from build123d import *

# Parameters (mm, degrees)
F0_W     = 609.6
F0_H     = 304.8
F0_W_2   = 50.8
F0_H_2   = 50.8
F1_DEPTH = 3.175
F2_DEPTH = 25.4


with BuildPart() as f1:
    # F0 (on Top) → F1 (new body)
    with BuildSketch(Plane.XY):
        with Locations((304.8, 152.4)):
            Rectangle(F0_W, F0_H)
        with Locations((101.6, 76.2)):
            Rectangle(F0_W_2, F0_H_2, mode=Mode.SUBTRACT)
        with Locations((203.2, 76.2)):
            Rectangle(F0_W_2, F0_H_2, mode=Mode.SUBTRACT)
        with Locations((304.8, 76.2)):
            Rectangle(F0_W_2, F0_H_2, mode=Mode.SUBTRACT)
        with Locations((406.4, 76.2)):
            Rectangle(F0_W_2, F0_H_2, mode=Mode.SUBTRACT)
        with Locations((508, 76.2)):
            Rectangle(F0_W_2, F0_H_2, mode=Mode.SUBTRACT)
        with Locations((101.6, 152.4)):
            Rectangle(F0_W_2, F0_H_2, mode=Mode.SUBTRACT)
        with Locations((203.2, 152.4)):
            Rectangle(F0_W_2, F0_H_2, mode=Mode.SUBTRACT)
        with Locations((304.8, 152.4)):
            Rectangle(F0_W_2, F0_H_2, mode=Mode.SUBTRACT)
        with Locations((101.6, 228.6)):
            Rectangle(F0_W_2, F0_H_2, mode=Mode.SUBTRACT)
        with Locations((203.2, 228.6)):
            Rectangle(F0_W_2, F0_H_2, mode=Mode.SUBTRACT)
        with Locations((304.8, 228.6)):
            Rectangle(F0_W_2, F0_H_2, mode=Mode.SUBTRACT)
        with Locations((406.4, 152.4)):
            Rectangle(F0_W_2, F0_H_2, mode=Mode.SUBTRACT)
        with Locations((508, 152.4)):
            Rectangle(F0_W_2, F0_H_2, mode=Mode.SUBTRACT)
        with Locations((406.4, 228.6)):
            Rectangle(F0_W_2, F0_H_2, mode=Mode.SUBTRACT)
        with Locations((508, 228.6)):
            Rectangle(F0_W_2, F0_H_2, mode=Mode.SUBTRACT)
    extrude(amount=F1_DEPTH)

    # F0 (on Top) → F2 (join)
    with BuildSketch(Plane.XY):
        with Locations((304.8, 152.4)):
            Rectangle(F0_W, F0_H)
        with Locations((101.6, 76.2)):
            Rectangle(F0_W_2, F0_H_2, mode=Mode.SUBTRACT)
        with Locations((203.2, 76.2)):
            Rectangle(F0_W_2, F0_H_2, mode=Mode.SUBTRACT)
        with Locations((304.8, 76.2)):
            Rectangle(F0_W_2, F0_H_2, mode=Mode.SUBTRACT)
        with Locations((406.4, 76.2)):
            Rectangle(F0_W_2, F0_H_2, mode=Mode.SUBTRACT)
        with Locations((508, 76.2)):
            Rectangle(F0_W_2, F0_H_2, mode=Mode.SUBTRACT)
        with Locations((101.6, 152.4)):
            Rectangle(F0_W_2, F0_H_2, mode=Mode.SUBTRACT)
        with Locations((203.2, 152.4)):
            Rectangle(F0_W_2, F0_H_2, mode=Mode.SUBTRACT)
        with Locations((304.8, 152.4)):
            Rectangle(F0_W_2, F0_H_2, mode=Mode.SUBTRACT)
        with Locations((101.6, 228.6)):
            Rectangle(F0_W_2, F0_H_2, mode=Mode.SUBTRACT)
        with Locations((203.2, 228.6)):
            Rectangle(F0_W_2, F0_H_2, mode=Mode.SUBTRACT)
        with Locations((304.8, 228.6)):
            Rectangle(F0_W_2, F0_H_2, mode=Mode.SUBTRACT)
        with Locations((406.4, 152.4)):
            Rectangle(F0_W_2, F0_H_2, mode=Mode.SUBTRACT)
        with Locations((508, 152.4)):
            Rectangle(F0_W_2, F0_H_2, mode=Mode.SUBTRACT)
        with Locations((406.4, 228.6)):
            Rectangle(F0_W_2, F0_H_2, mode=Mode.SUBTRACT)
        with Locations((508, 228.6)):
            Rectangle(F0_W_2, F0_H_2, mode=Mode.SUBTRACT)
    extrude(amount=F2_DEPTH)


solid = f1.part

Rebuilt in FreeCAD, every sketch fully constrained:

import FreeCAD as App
import Part
import Sketcher
Q = App.Units.Quantity

doc = App.newDocument("Part")
body = doc.addObject("PartDesign::Body", "Body")

sketch1 = doc.addObject("Sketcher::SketchObject", "Sketch")
body.addObject(sketch1)
sketch1.AttachmentSupport = (doc.XY_Plane, [""])
sketch1.MapMode = "FlatFace"
sketch1.addGeometry(Part.LineSegment(App.Vector(0, 305, 0), App.Vector(0, 0, 0)), False)
sketch1.addGeometry(Part.LineSegment(App.Vector(0, 0, 0), App.Vector(610, 0, 0)), False)
sketch1.addGeometry(Part.LineSegment(App.Vector(610, 0, 0), App.Vector(610, 305, 0)), False)
sketch1.addGeometry(Part.LineSegment(App.Vector(610, 305, 0), App.Vector(0, 305, 0)), False)
sketch1.addGeometry(Part.LineSegment(App.Vector(127, 51, 0), App.Vector(76, 51, 0)), False)
sketch1.addGeometry(Part.LineSegment(App.Vector(76, 51, 0), App.Vector(76, 102, 0)), False)
sketch1.addGeometry(Part.LineSegment(App.Vector(76, 102, 0), App.Vector(127, 102, 0)), False)
sketch1.addGeometry(Part.LineSegment(App.Vector(127, 102, 0), App.Vector(127, 51, 0)), False)
sketch1.addGeometry(Part.LineSegment(App.Vector(229, 51, 0), App.Vector(178, 51, 0)), False)
sketch1.addGeometry(Part.LineSegment(App.Vector(178, 51, 0), App.Vector(178, 102, 0)), False)
sketch1.addGeometry(Part.LineSegment(App.Vector(178, 102, 0), App.Vector(229, 102, 0)), False)
sketch1.addGeometry(Part.LineSegment(App.Vector(229, 102, 0), App.Vector(229, 51, 0)), False)
sketch1.addGeometry(Part.LineSegment(App.Vector(127, 127, 0), App.Vector(76, 127, 0)), False)
sketch1.addGeometry(Part.LineSegment(App.Vector(76, 127, 0), App.Vector(76, 178, 0)), False)
sketch1.addGeometry(Part.LineSegment(App.Vector(76, 178, 0), App.Vector(127, 178, 0)), False)
sketch1.addGeometry(Part.LineSegment(App.Vector(127, 178, 0), App.Vector(127, 127, 0)), False)
sketch1.addGeometry(Part.LineSegment(App.Vector(229, 127, 0), App.Vector(178, 127, 0)), False)
sketch1.addGeometry(Part.LineSegment(App.Vector(178, 127, 0), App.Vector(178, 178, 0)), False)
sketch1.addGeometry(Part.LineSegment(App.Vector(178, 178, 0), App.Vector(229, 178, 0)), False)
sketch1.addGeometry(Part.LineSegment(App.Vector(229, 178, 0), App.Vector(229, 127, 0)), False)
sketch1.addGeometry(Part.LineSegment(App.Vector(330, 51, 0), App.Vector(279, 51, 0)), False)
sketch1.addGeometry(Part.LineSegment(App.Vector(279, 51, 0), App.Vector(279, 102, 0)), False)
sketch1.addGeometry(Part.LineSegment(App.Vector(279, 102, 0), App.Vector(330, 102, 0)), False)
sketch1.addGeometry(Part.LineSegment(App.Vector(330, 102, 0), App.Vector(330, 51, 0)), False)
sketch1.addGeometry(Part.LineSegment(App.Vector(432, 51, 0), App.Vector(381, 51, 0)), False)
sketch1.addGeometry(Part.LineSegment(App.Vector(381, 51, 0), App.Vector(381, 102, 0)), False)
sketch1.addGeometry(Part.LineSegment(App.Vector(381, 102, 0), App.Vector(432, 102, 0)), False)
sketch1.addGeometry(Part.LineSegment(App.Vector(432, 102, 0), App.Vector(432, 51, 0)), False)
sketch1.addGeometry(Part.LineSegment(App.Vector(533, 51, 0), App.Vector(483, 51, 0)), False)
sketch1.addGeometry(Part.LineSegment(App.Vector(483, 51, 0), App.Vector(483, 102, 0)), False)
sketch1.addGeometry(Part.LineSegment(App.Vector(483, 102, 0), App.Vector(533, 102, 0)), False)
sketch1.addGeometry(Part.LineSegment(App.Vector(533, 102, 0), App.Vector(533, 51, 0)), False)
sketch1.addGeometry(Part.LineSegment(App.Vector(330, 127, 0), App.Vector(279, 127, 0)), False)
sketch1.addGeometry(Part.LineSegment(App.Vector(279, 127, 0), App.Vector(279, 178, 0)), False)
sketch1.addGeometry(Part.LineSegment(App.Vector(279, 178, 0), App.Vector(330, 178, 0)), False)
sketch1.addGeometry(Part.LineSegment(App.Vector(330, 178, 0), App.Vector(330, 127, 0)), False)
sketch1.addGeometry(Part.LineSegment(App.Vector(432, 127, 0), App.Vector(381, 127, 0)), False)
sketch1.addGeometry(Part.LineSegment(App.Vector(381, 127, 0), App.Vector(381, 178, 0)), False)
sketch1.addGeometry(Part.LineSegment(App.Vector(381, 178, 0), App.Vector(432, 178, 0)), False)
sketch1.addGeometry(Part.LineSegment(App.Vector(432, 178, 0), App.Vector(432, 127, 0)), False)
sketch1.addGeometry(Part.LineSegment(App.Vector(533, 127, 0), App.Vector(483, 127, 0)), False)
sketch1.addGeometry(Part.LineSegment(App.Vector(483, 127, 0), App.Vector(483, 178, 0)), False)
sketch1.addGeometry(Part.LineSegment(App.Vector(483, 178, 0), App.Vector(533, 178, 0)), False)
sketch1.addGeometry(Part.LineSegment(App.Vector(533, 178, 0), App.Vector(533, 127, 0)), False)
sketch1.addGeometry(Part.LineSegment(App.Vector(127, 203, 0), App.Vector(76, 203, 0)), False)
sketch1.addGeometry(Part.LineSegment(App.Vector(76, 203, 0), App.Vector(76, 254, 0)), False)
sketch1.addGeometry(Part.LineSegment(App.Vector(76, 254, 0), App.Vector(127, 254, 0)), False)
sketch1.addGeometry(Part.LineSegment(App.Vector(127, 254, 0), App.Vector(127, 203, 0)), False)
sketch1.addGeometry(Part.LineSegment(App.Vector(229, 203, 0), App.Vector(178, 203, 0)), False)
sketch1.addGeometry(Part.LineSegment(App.Vector(178, 203, 0), App.Vector(178, 254, 0)), False)
sketch1.addGeometry(Part.LineSegment(App.Vector(178, 254, 0), App.Vector(229, 254, 0)), False)
sketch1.addGeometry(Part.LineSegment(App.Vector(229, 254, 0), App.Vector(229, 203, 0)), False)
sketch1.addGeometry(Part.LineSegment(App.Vector(330, 203, 0), App.Vector(279, 203, 0)), False)
sketch1.addGeometry(Part.LineSegment(App.Vector(279, 203, 0), App.Vector(279, 254, 0)), False)
sketch1.addGeometry(Part.LineSegment(App.Vector(279, 254, 0), App.Vector(330, 254, 0)), False)
sketch1.addGeometry(Part.LineSegment(App.Vector(330, 254, 0), App.Vector(330, 203, 0)), False)
sketch1.addGeometry(Part.LineSegment(App.Vector(432, 203, 0), App.Vector(381, 203, 0)), False)
sketch1.addGeometry(Part.LineSegment(App.Vector(381, 203, 0), App.Vector(381, 254, 0)), False)
sketch1.addGeometry(Part.LineSegment(App.Vector(381, 254, 0), App.Vector(432, 254, 0)), False)
sketch1.addGeometry(Part.LineSegment(App.Vector(432, 254, 0), App.Vector(432, 203, 0)), False)
sketch1.addGeometry(Part.LineSegment(App.Vector(533, 203, 0), App.Vector(483, 203, 0)), False)
sketch1.addGeometry(Part.LineSegment(App.Vector(483, 203, 0), App.Vector(483, 254, 0)), False)
sketch1.addGeometry(Part.LineSegment(App.Vector(483, 254, 0), App.Vector(533, 254, 0)), False)
sketch1.addGeometry(Part.LineSegment(App.Vector(533, 254, 0), App.Vector(533, 203, 0)), False)
sketch1.addConstraint(Sketcher.Constraint("Coincident", 0, 2, 1, 1))
sketch1.addConstraint(Sketcher.Constraint("Coincident", 1, 2, 2, 1))
sketch1.addConstraint(Sketcher.Constraint("Coincident", 2, 2, 3, 1))
sketch1.addConstraint(Sketcher.Constraint("Coincident", 3, 2, 0, 1))
sketch1.addConstraint(Sketcher.Constraint("Coincident", 4, 2, 5, 1))
sketch1.addConstraint(Sketcher.Constraint("Coincident", 5, 2, 6, 1))
sketch1.addConstraint(Sketcher.Constraint("Coincident", 6, 2, 7, 1))
sketch1.addConstraint(Sketcher.Constraint("Coincident", 7, 2, 4, 1))
sketch1.addConstraint(Sketcher.Constraint("Coincident", 8, 2, 9, 1))
sketch1.addConstraint(Sketcher.Constraint("Coincident", 9, 2, 10, 1))
sketch1.addConstraint(Sketcher.Constraint("Coincident", 10, 2, 11, 1))
sketch1.addConstraint(Sketcher.Constraint("Coincident", 11, 2, 8, 1))
sketch1.addConstraint(Sketcher.Constraint("Coincident", 12, 2, 13, 1))
sketch1.addConstraint(Sketcher.Constraint("Coincident", 13, 2, 14, 1))
sketch1.addConstraint(Sketcher.Constraint("Coincident", 14, 2, 15, 1))
sketch1.addConstraint(Sketcher.Constraint("Coincident", 15, 2, 12, 1))
sketch1.addConstraint(Sketcher.Constraint("Coincident", 16, 2, 17, 1))
sketch1.addConstraint(Sketcher.Constraint("Coincident", 17, 2, 18, 1))
sketch1.addConstraint(Sketcher.Constraint("Coincident", 18, 2, 19, 1))
sketch1.addConstraint(Sketcher.Constraint("Coincident", 19, 2, 16, 1))
sketch1.addConstraint(Sketcher.Constraint("Coincident", 20, 2, 21, 1))
sketch1.addConstraint(Sketcher.Constraint("Coincident", 21, 2, 22, 1))
sketch1.addConstraint(Sketcher.Constraint("Coincident", 22, 2, 23, 1))
sketch1.addConstraint(Sketcher.Constraint("Coincident", 23, 2, 20, 1))
sketch1.addConstraint(Sketcher.Constraint("Coincident", 24, 2, 25, 1))
sketch1.addConstraint(Sketcher.Constraint("Coincident", 25, 2, 26, 1))
sketch1.addConstraint(Sketcher.Constraint("Coincident", 26, 2, 27, 1))
sketch1.addConstraint(Sketcher.Constraint("Coincident", 27, 2, 24, 1))
sketch1.addConstraint(Sketcher.Constraint("Coincident", 28, 2, 29, 1))
sketch1.addConstraint(Sketcher.Constraint("Coincident", 29, 2, 30, 1))
sketch1.addConstraint(Sketcher.Constraint("Coincident", 30, 2, 31, 1))
sketch1.addConstraint(Sketcher.Constraint("Coincident", 31, 2, 28, 1))
sketch1.addConstraint(Sketcher.Constraint("Coincident", 32, 2, 33, 1))
sketch1.addConstraint(Sketcher.Constraint("Coincident", 33, 2, 34, 1))
sketch1.addConstraint(Sketcher.Constraint("Coincident", 34, 2, 35, 1))
sketch1.addConstraint(Sketcher.Constraint("Coincident", 35, 2, 32, 1))
sketch1.addConstraint(Sketcher.Constraint("Coincident", 36, 2, 37, 1))
sketch1.addConstraint(Sketcher.Constraint("Coincident", 37, 2, 38, 1))
sketch1.addConstraint(Sketcher.Constraint("Coincident", 38, 2, 39, 1))
sketch1.addConstraint(Sketcher.Constraint("Coincident", 39, 2, 36, 1))
sketch1.addConstraint(Sketcher.Constraint("Coincident", 40, 2, 41, 1))
sketch1.addConstraint(Sketcher.Constraint("Coincident", 41, 2, 42, 1))
sketch1.addConstraint(Sketcher.Constraint("Coincident", 42, 2, 43, 1))
sketch1.addConstraint(Sketcher.Constraint("Coincident", 43, 2, 40, 1))
sketch1.addConstraint(Sketcher.Constraint("Coincident", 44, 2, 45, 1))
sketch1.addConstraint(Sketcher.Constraint("Coincident", 45, 2, 46, 1))
sketch1.addConstraint(Sketcher.Constraint("Coincident", 46, 2, 47, 1))
sketch1.addConstraint(Sketcher.Constraint("Coincident", 47, 2, 44, 1))
sketch1.addConstraint(Sketcher.Constraint("Coincident", 48, 2, 49, 1))
sketch1.addConstraint(Sketcher.Constraint("Coincident", 49, 2, 50, 1))
sketch1.addConstraint(Sketcher.Constraint("Coincident", 50, 2, 51, 1))
sketch1.addConstraint(Sketcher.Constraint("Coincident", 51, 2, 48, 1))
sketch1.addConstraint(Sketcher.Constraint("Coincident", 52, 2, 53, 1))
sketch1.addConstraint(Sketcher.Constraint("Coincident", 53, 2, 54, 1))
sketch1.addConstraint(Sketcher.Constraint("Coincident", 54, 2, 55, 1))
sketch1.addConstraint(Sketcher.Constraint("Coincident", 55, 2, 52, 1))
sketch1.addConstraint(Sketcher.Constraint("Coincident", 56, 2, 57, 1))
sketch1.addConstraint(Sketcher.Constraint("Coincident", 57, 2, 58, 1))
sketch1.addConstraint(Sketcher.Constraint("Coincident", 58, 2, 59, 1))
sketch1.addConstraint(Sketcher.Constraint("Coincident", 59, 2, 56, 1))
sketch1.addConstraint(Sketcher.Constraint("Coincident", 60, 2, 61, 1))
sketch1.addConstraint(Sketcher.Constraint("Coincident", 61, 2, 62, 1))
sketch1.addConstraint(Sketcher.Constraint("Coincident", 62, 2, 63, 1))
sketch1.addConstraint(Sketcher.Constraint("Coincident", 63, 2, 60, 1))
sketch1.addConstraint(Sketcher.Constraint("Vertical", 0))
sketch1.addConstraint(Sketcher.Constraint("Horizontal", 1))
sketch1.addConstraint(Sketcher.Constraint("Vertical", 2))
sketch1.addConstraint(Sketcher.Constraint("Horizontal", 3))
sketch1.addConstraint(Sketcher.Constraint("Horizontal", 4))
sketch1.addConstraint(Sketcher.Constraint("Vertical", 5))
sketch1.addConstraint(Sketcher.Constraint("Horizontal", 6))
sketch1.addConstraint(Sketcher.Constraint("Vertical", 7))
sketch1.addConstraint(Sketcher.Constraint("Horizontal", 8))
sketch1.addConstraint(Sketcher.Constraint("Vertical", 9))
sketch1.addConstraint(Sketcher.Constraint("Horizontal", 10))
sketch1.addConstraint(Sketcher.Constraint("Vertical", 11))
sketch1.addConstraint(Sketcher.Constraint("Horizontal", 12))
sketch1.addConstraint(Sketcher.Constraint("Vertical", 13))
sketch1.addConstraint(Sketcher.Constraint("Horizontal", 14))
sketch1.addConstraint(Sketcher.Constraint("Vertical", 15))
sketch1.addConstraint(Sketcher.Constraint("Horizontal", 16))
sketch1.addConstraint(Sketcher.Constraint("Vertical", 17))
sketch1.addConstraint(Sketcher.Constraint("Horizontal", 18))
sketch1.addConstraint(Sketcher.Constraint("Vertical", 19))
sketch1.addConstraint(Sketcher.Constraint("Horizontal", 20))
sketch1.addConstraint(Sketcher.Constraint("Vertical", 21))
sketch1.addConstraint(Sketcher.Constraint("Horizontal", 22))
sketch1.addConstraint(Sketcher.Constraint("Vertical", 23))
sketch1.addConstraint(Sketcher.Constraint("Horizontal", 24))
sketch1.addConstraint(Sketcher.Constraint("Vertical", 25))
sketch1.addConstraint(Sketcher.Constraint("Horizontal", 26))
sketch1.addConstraint(Sketcher.Constraint("Vertical", 27))
sketch1.addConstraint(Sketcher.Constraint("Horizontal", 28))
sketch1.addConstraint(Sketcher.Constraint("Vertical", 29))
sketch1.addConstraint(Sketcher.Constraint("Horizontal", 30))
sketch1.addConstraint(Sketcher.Constraint("Vertical", 31))
sketch1.addConstraint(Sketcher.Constraint("Horizontal", 32))
sketch1.addConstraint(Sketcher.Constraint("Vertical", 33))
sketch1.addConstraint(Sketcher.Constraint("Horizontal", 34))
sketch1.addConstraint(Sketcher.Constraint("Vertical", 35))
sketch1.addConstraint(Sketcher.Constraint("Horizontal", 36))
sketch1.addConstraint(Sketcher.Constraint("Vertical", 37))
sketch1.addConstraint(Sketcher.Constraint("Horizontal", 38))
sketch1.addConstraint(Sketcher.Constraint("Vertical", 39))
sketch1.addConstraint(Sketcher.Constraint("Horizontal", 40))
sketch1.addConstraint(Sketcher.Constraint("Vertical", 41))
sketch1.addConstraint(Sketcher.Constraint("Horizontal", 42))
sketch1.addConstraint(Sketcher.Constraint("Vertical", 43))
sketch1.addConstraint(Sketcher.Constraint("Horizontal", 44))
sketch1.addConstraint(Sketcher.Constraint("Vertical", 45))
sketch1.addConstraint(Sketcher.Constraint("Horizontal", 46))
sketch1.addConstraint(Sketcher.Constraint("Vertical", 47))
sketch1.addConstraint(Sketcher.Constraint("Horizontal", 48))
sketch1.addConstraint(Sketcher.Constraint("Vertical", 49))
sketch1.addConstraint(Sketcher.Constraint("Horizontal", 50))
sketch1.addConstraint(Sketcher.Constraint("Vertical", 51))
sketch1.addConstraint(Sketcher.Constraint("Horizontal", 52))
sketch1.addConstraint(Sketcher.Constraint("Vertical", 53))
sketch1.addConstraint(Sketcher.Constraint("Horizontal", 54))
sketch1.addConstraint(Sketcher.Constraint("Vertical", 55))
sketch1.addConstraint(Sketcher.Constraint("Horizontal", 56))
sketch1.addConstraint(Sketcher.Constraint("Vertical", 57))
sketch1.addConstraint(Sketcher.Constraint("Horizontal", 58))
sketch1.addConstraint(Sketcher.Constraint("Vertical", 59))
sketch1.addConstraint(Sketcher.Constraint("Horizontal", 60))
sketch1.addConstraint(Sketcher.Constraint("Vertical", 61))
sketch1.addConstraint(Sketcher.Constraint("Horizontal", 62))
sketch1.addConstraint(Sketcher.Constraint("Vertical", 63))
sketch1.addConstraint(Sketcher.Constraint("Coincident", 0, 2, -1, 1))
sketch1.addConstraint(Sketcher.Constraint("Horizontal", 7, 2, 8, 2))
sketch1.addConstraint(Sketcher.Constraint("Horizontal", 6, 2, 9, 2))
sketch1.addConstraint(Sketcher.Constraint("Horizontal", 15, 2, 16, 2))
sketch1.addConstraint(Sketcher.Constraint("Horizontal", 14, 2, 17, 2))
sketch1.addConstraint(Sketcher.Constraint("Horizontal", 11, 2, 20, 2))
sketch1.addConstraint(Sketcher.Constraint("Horizontal", 10, 2, 21, 2))
sketch1.addConstraint(Sketcher.Constraint("Horizontal", 23, 2, 24, 2))
sketch1.addConstraint(Sketcher.Constraint("Horizontal", 22, 2, 25, 2))
sketch1.addConstraint(Sketcher.Constraint("Horizontal", 27, 2, 28, 2))
sketch1.addConstraint(Sketcher.Constraint("Horizontal", 26, 2, 29, 2))
sketch1.addConstraint(Sketcher.Constraint("Horizontal", 19, 2, 32, 2))
sketch1.addConstraint(Sketcher.Constraint("Horizontal", 18, 2, 33, 2))
sketch1.addConstraint(Sketcher.Constraint("Horizontal", 35, 2, 36, 2))
sketch1.addConstraint(Sketcher.Constraint("Horizontal", 34, 2, 37, 2))
sketch1.addConstraint(Sketcher.Constraint("Horizontal", 39, 2, 40, 2))
sketch1.addConstraint(Sketcher.Constraint("Horizontal", 38, 2, 41, 2))
sketch1.addConstraint(Sketcher.Constraint("Horizontal", 47, 2, 48, 2))
sketch1.addConstraint(Sketcher.Constraint("Horizontal", 46, 2, 49, 2))
sketch1.addConstraint(Sketcher.Constraint("Horizontal", 51, 2, 52, 2))
sketch1.addConstraint(Sketcher.Constraint("Horizontal", 50, 2, 53, 2))
sketch1.addConstraint(Sketcher.Constraint("Horizontal", 55, 2, 56, 2))
sketch1.addConstraint(Sketcher.Constraint("Horizontal", 54, 2, 57, 2))
sketch1.addConstraint(Sketcher.Constraint("Horizontal", 59, 2, 60, 2))
sketch1.addConstraint(Sketcher.Constraint("Horizontal", 58, 2, 61, 2))
sketch1.addConstraint(Sketcher.Constraint("Vertical", 5, 2, 12, 2))
sketch1.addConstraint(Sketcher.Constraint("Vertical", 7, 2, 14, 2))
sketch1.addConstraint(Sketcher.Constraint("Vertical", 9, 2, 16, 2))
sketch1.addConstraint(Sketcher.Constraint("Vertical", 11, 2, 18, 2))
sketch1.addConstraint(Sketcher.Constraint("Vertical", 21, 2, 32, 2))
sketch1.addConstraint(Sketcher.Constraint("Vertical", 23, 2, 34, 2))
sketch1.addConstraint(Sketcher.Constraint("Vertical", 25, 2, 36, 2))
sketch1.addConstraint(Sketcher.Constraint("Vertical", 27, 2, 38, 2))
sketch1.addConstraint(Sketcher.Constraint("Vertical", 29, 2, 40, 2))
sketch1.addConstraint(Sketcher.Constraint("Vertical", 31, 2, 42, 2))
sketch1.addConstraint(Sketcher.Constraint("Vertical", 13, 2, 44, 2))
sketch1.addConstraint(Sketcher.Constraint("Vertical", 15, 2, 46, 2))
sketch1.addConstraint(Sketcher.Constraint("Vertical", 17, 2, 48, 2))
sketch1.addConstraint(Sketcher.Constraint("Vertical", 19, 2, 50, 2))
sketch1.addConstraint(Sketcher.Constraint("Vertical", 33, 2, 52, 2))
sketch1.addConstraint(Sketcher.Constraint("Vertical", 35, 2, 54, 2))
sketch1.addConstraint(Sketcher.Constraint("Vertical", 37, 2, 56, 2))
sketch1.addConstraint(Sketcher.Constraint("Vertical", 39, 2, 58, 2))
sketch1.addConstraint(Sketcher.Constraint("Vertical", 41, 2, 60, 2))
sketch1.addConstraint(Sketcher.Constraint("Vertical", 43, 2, 62, 2))
sketch1.addConstraint(Sketcher.Constraint("Equal", 6, 8))
sketch1.addConstraint(Sketcher.Constraint("Equal", 18, 20))
sketch1.addConstraint(Sketcher.Constraint("Equal", 22, 24))
sketch1.addConstraint(Sketcher.Constraint("Equal", 26, 28))
sketch1.addConstraint(Sketcher.Constraint("Equal", 62, 5))
sketch1.addConstraint(Sketcher.Constraint("Equal", 11, 13))
sketch1.addConstraint(Sketcher.Constraint("Equal", 43, 45))
sketch1.addConstraint(Sketcher.Constraint("DistanceX", 1, 1, 1, 2, Q("24 in")))
sketch1.addConstraint(Sketcher.Constraint("DistanceX", 4, 2, 4, 1, Q("2 in")))
sketch1.addConstraint(Sketcher.Constraint("DistanceY", 0, 2, 0, 1, Q("12 in")))
sketch1.addConstraint(Sketcher.Constraint("DistanceX", -1, 1, 4, 2, Q("3 in")))
sketch1.addConstraint(Sketcher.Constraint("DistanceY", -1, 1, 4, 2, Q("2 in")))
sketch1.addConstraint(Sketcher.Constraint("DistanceX", -1, 1, 8, 2, Q("7 in")))
sketch1.addConstraint(Sketcher.Constraint("DistanceY", -1, 1, 12, 2, Q("5 in")))
sketch1.addConstraint(Sketcher.Constraint("DistanceX", -1, 1, 20, 2, Q("11 in")))
sketch1.addConstraint(Sketcher.Constraint("DistanceX", -1, 1, 24, 2, Q("15 in")))
sketch1.addConstraint(Sketcher.Constraint("DistanceX", -1, 1, 28, 2, Q("19 in")))
sketch1.addConstraint(Sketcher.Constraint("DistanceY", -1, 1, 44, 2, Q("8 in")))
pad1 = doc.addObject("PartDesign::Pad", "Pad")
body.addObject(pad1)
pad1.Profile = sketch1
pad1.Length = Q("0.125 in")

sketch2 = doc.addObject("Sketcher::SketchObject", "Sketch001")
body.addObject(sketch2)
sketch2.AttachmentSupport = (doc.XY_Plane, [""])
sketch2.MapMode = "FlatFace"
sketch2.addGeometry(Part.LineSegment(App.Vector(0, 305, 0), App.Vector(0, 0, 0)), False)
sketch2.addGeometry(Part.LineSegment(App.Vector(0, 0, 0), App.Vector(610, 0, 0)), False)
sketch2.addGeometry(Part.LineSegment(App.Vector(610, 0, 0), App.Vector(610, 305, 0)), False)
sketch2.addGeometry(Part.LineSegment(App.Vector(610, 305, 0), App.Vector(0, 305, 0)), False)
sketch2.addGeometry(Part.LineSegment(App.Vector(127, 51, 0), App.Vector(76, 51, 0)), False)
sketch2.addGeometry(Part.LineSegment(App.Vector(76, 51, 0), App.Vector(76, 102, 0)), False)
sketch2.addGeometry(Part.LineSegment(App.Vector(76, 102, 0), App.Vector(127, 102, 0)), False)
sketch2.addGeometry(Part.LineSegment(App.Vector(127, 102, 0), App.Vector(127, 51, 0)), False)
sketch2.addGeometry(Part.LineSegment(App.Vector(229, 51, 0), App.Vector(178, 51, 0)), False)
sketch2.addGeometry(Part.LineSegment(App.Vector(178, 51, 0), App.Vector(178, 102, 0)), False)
sketch2.addGeometry(Part.LineSegment(App.Vector(178, 102, 0), App.Vector(229, 102, 0)), False)
sketch2.addGeometry(Part.LineSegment(App.Vector(229, 102, 0), App.Vector(229, 51, 0)), False)
sketch2.addGeometry(Part.LineSegment(App.Vector(127, 127, 0), App.Vector(76, 127, 0)), False)
sketch2.addGeometry(Part.LineSegment(App.Vector(76, 127, 0), App.Vector(76, 178, 0)), False)
sketch2.addGeometry(Part.LineSegment(App.Vector(76, 178, 0), App.Vector(127, 178, 0)), False)
sketch2.addGeometry(Part.LineSegment(App.Vector(127, 178, 0), App.Vector(127, 127, 0)), False)
sketch2.addGeometry(Part.LineSegment(App.Vector(229, 127, 0), App.Vector(178, 127, 0)), False)
sketch2.addGeometry(Part.LineSegment(App.Vector(178, 127, 0), App.Vector(178, 178, 0)), False)
sketch2.addGeometry(Part.LineSegment(App.Vector(178, 178, 0), App.Vector(229, 178, 0)), False)
sketch2.addGeometry(Part.LineSegment(App.Vector(229, 178, 0), App.Vector(229, 127, 0)), False)
sketch2.addGeometry(Part.LineSegment(App.Vector(330, 51, 0), App.Vector(279, 51, 0)), False)
sketch2.addGeometry(Part.LineSegment(App.Vector(279, 51, 0), App.Vector(279, 102, 0)), False)
sketch2.addGeometry(Part.LineSegment(App.Vector(279, 102, 0), App.Vector(330, 102, 0)), False)
sketch2.addGeometry(Part.LineSegment(App.Vector(330, 102, 0), App.Vector(330, 51, 0)), False)
sketch2.addGeometry(Part.LineSegment(App.Vector(432, 51, 0), App.Vector(381, 51, 0)), False)
sketch2.addGeometry(Part.LineSegment(App.Vector(381, 51, 0), App.Vector(381, 102, 0)), False)
sketch2.addGeometry(Part.LineSegment(App.Vector(381, 102, 0), App.Vector(432, 102, 0)), False)
sketch2.addGeometry(Part.LineSegment(App.Vector(432, 102, 0), App.Vector(432, 51, 0)), False)
sketch2.addGeometry(Part.LineSegment(App.Vector(533, 51, 0), App.Vector(483, 51, 0)), False)
sketch2.addGeometry(Part.LineSegment(App.Vector(483, 51, 0), App.Vector(483, 102, 0)), False)
sketch2.addGeometry(Part.LineSegment(App.Vector(483, 102, 0), App.Vector(533, 102, 0)), False)
sketch2.addGeometry(Part.LineSegment(App.Vector(533, 102, 0), App.Vector(533, 51, 0)), False)
sketch2.addGeometry(Part.LineSegment(App.Vector(330, 127, 0), App.Vector(279, 127, 0)), False)
sketch2.addGeometry(Part.LineSegment(App.Vector(279, 127, 0), App.Vector(279, 178, 0)), False)
sketch2.addGeometry(Part.LineSegment(App.Vector(279, 178, 0), App.Vector(330, 178, 0)), False)
sketch2.addGeometry(Part.LineSegment(App.Vector(330, 178, 0), App.Vector(330, 127, 0)), False)
sketch2.addGeometry(Part.LineSegment(App.Vector(432, 127, 0), App.Vector(381, 127, 0)), False)
sketch2.addGeometry(Part.LineSegment(App.Vector(381, 127, 0), App.Vector(381, 178, 0)), False)
sketch2.addGeometry(Part.LineSegment(App.Vector(381, 178, 0), App.Vector(432, 178, 0)), False)
sketch2.addGeometry(Part.LineSegment(App.Vector(432, 178, 0), App.Vector(432, 127, 0)), False)
sketch2.addGeometry(Part.LineSegment(App.Vector(533, 127, 0), App.Vector(483, 127, 0)), False)
sketch2.addGeometry(Part.LineSegment(App.Vector(483, 127, 0), App.Vector(483, 178, 0)), False)
sketch2.addGeometry(Part.LineSegment(App.Vector(483, 178, 0), App.Vector(533, 178, 0)), False)
sketch2.addGeometry(Part.LineSegment(App.Vector(533, 178, 0), App.Vector(533, 127, 0)), False)
sketch2.addGeometry(Part.LineSegment(App.Vector(127, 203, 0), App.Vector(76, 203, 0)), False)
sketch2.addGeometry(Part.LineSegment(App.Vector(76, 203, 0), App.Vector(76, 254, 0)), False)
sketch2.addGeometry(Part.LineSegment(App.Vector(76, 254, 0), App.Vector(127, 254, 0)), False)
sketch2.addGeometry(Part.LineSegment(App.Vector(127, 254, 0), App.Vector(127, 203, 0)), False)
sketch2.addGeometry(Part.LineSegment(App.Vector(229, 203, 0), App.Vector(178, 203, 0)), False)
sketch2.addGeometry(Part.LineSegment(App.Vector(178, 203, 0), App.Vector(178, 254, 0)), False)
sketch2.addGeometry(Part.LineSegment(App.Vector(178, 254, 0), App.Vector(229, 254, 0)), False)
sketch2.addGeometry(Part.LineSegment(App.Vector(229, 254, 0), App.Vector(229, 203, 0)), False)
sketch2.addGeometry(Part.LineSegment(App.Vector(330, 203, 0), App.Vector(279, 203, 0)), False)
sketch2.addGeometry(Part.LineSegment(App.Vector(279, 203, 0), App.Vector(279, 254, 0)), False)
sketch2.addGeometry(Part.LineSegment(App.Vector(279, 254, 0), App.Vector(330, 254, 0)), False)
sketch2.addGeometry(Part.LineSegment(App.Vector(330, 254, 0), App.Vector(330, 203, 0)), False)
sketch2.addGeometry(Part.LineSegment(App.Vector(432, 203, 0), App.Vector(381, 203, 0)), False)
sketch2.addGeometry(Part.LineSegment(App.Vector(381, 203, 0), App.Vector(381, 254, 0)), False)
sketch2.addGeometry(Part.LineSegment(App.Vector(381, 254, 0), App.Vector(432, 254, 0)), False)
sketch2.addGeometry(Part.LineSegment(App.Vector(432, 254, 0), App.Vector(432, 203, 0)), False)
sketch2.addGeometry(Part.LineSegment(App.Vector(533, 203, 0), App.Vector(483, 203, 0)), False)
sketch2.addGeometry(Part.LineSegment(App.Vector(483, 203, 0), App.Vector(483, 254, 0)), False)
sketch2.addGeometry(Part.LineSegment(App.Vector(483, 254, 0), App.Vector(533, 254, 0)), False)
sketch2.addGeometry(Part.LineSegment(App.Vector(533, 254, 0), App.Vector(533, 203, 0)), False)
sketch2.addConstraint(Sketcher.Constraint("Coincident", 0, 2, 1, 1))
sketch2.addConstraint(Sketcher.Constraint("Coincident", 1, 2, 2, 1))
sketch2.addConstraint(Sketcher.Constraint("Coincident", 2, 2, 3, 1))
sketch2.addConstraint(Sketcher.Constraint("Coincident", 3, 2, 0, 1))
sketch2.addConstraint(Sketcher.Constraint("Coincident", 4, 2, 5, 1))
sketch2.addConstraint(Sketcher.Constraint("Coincident", 5, 2, 6, 1))
sketch2.addConstraint(Sketcher.Constraint("Coincident", 6, 2, 7, 1))
sketch2.addConstraint(Sketcher.Constraint("Coincident", 7, 2, 4, 1))
sketch2.addConstraint(Sketcher.Constraint("Coincident", 8, 2, 9, 1))
sketch2.addConstraint(Sketcher.Constraint("Coincident", 9, 2, 10, 1))
sketch2.addConstraint(Sketcher.Constraint("Coincident", 10, 2, 11, 1))
sketch2.addConstraint(Sketcher.Constraint("Coincident", 11, 2, 8, 1))
sketch2.addConstraint(Sketcher.Constraint("Coincident", 12, 2, 13, 1))
sketch2.addConstraint(Sketcher.Constraint("Coincident", 13, 2, 14, 1))
sketch2.addConstraint(Sketcher.Constraint("Coincident", 14, 2, 15, 1))
sketch2.addConstraint(Sketcher.Constraint("Coincident", 15, 2, 12, 1))
sketch2.addConstraint(Sketcher.Constraint("Coincident", 16, 2, 17, 1))
sketch2.addConstraint(Sketcher.Constraint("Coincident", 17, 2, 18, 1))
sketch2.addConstraint(Sketcher.Constraint("Coincident", 18, 2, 19, 1))
sketch2.addConstraint(Sketcher.Constraint("Coincident", 19, 2, 16, 1))
sketch2.addConstraint(Sketcher.Constraint("Coincident", 20, 2, 21, 1))
sketch2.addConstraint(Sketcher.Constraint("Coincident", 21, 2, 22, 1))
sketch2.addConstraint(Sketcher.Constraint("Coincident", 22, 2, 23, 1))
sketch2.addConstraint(Sketcher.Constraint("Coincident", 23, 2, 20, 1))
sketch2.addConstraint(Sketcher.Constraint("Coincident", 24, 2, 25, 1))
sketch2.addConstraint(Sketcher.Constraint("Coincident", 25, 2, 26, 1))
sketch2.addConstraint(Sketcher.Constraint("Coincident", 26, 2, 27, 1))
sketch2.addConstraint(Sketcher.Constraint("Coincident", 27, 2, 24, 1))
sketch2.addConstraint(Sketcher.Constraint("Coincident", 28, 2, 29, 1))
sketch2.addConstraint(Sketcher.Constraint("Coincident", 29, 2, 30, 1))
sketch2.addConstraint(Sketcher.Constraint("Coincident", 30, 2, 31, 1))
sketch2.addConstraint(Sketcher.Constraint("Coincident", 31, 2, 28, 1))
sketch2.addConstraint(Sketcher.Constraint("Coincident", 32, 2, 33, 1))
sketch2.addConstraint(Sketcher.Constraint("Coincident", 33, 2, 34, 1))
sketch2.addConstraint(Sketcher.Constraint("Coincident", 34, 2, 35, 1))
sketch2.addConstraint(Sketcher.Constraint("Coincident", 35, 2, 32, 1))
sketch2.addConstraint(Sketcher.Constraint("Coincident", 36, 2, 37, 1))
sketch2.addConstraint(Sketcher.Constraint("Coincident", 37, 2, 38, 1))
sketch2.addConstraint(Sketcher.Constraint("Coincident", 38, 2, 39, 1))
sketch2.addConstraint(Sketcher.Constraint("Coincident", 39, 2, 36, 1))
sketch2.addConstraint(Sketcher.Constraint("Coincident", 40, 2, 41, 1))
sketch2.addConstraint(Sketcher.Constraint("Coincident", 41, 2, 42, 1))
sketch2.addConstraint(Sketcher.Constraint("Coincident", 42, 2, 43, 1))
sketch2.addConstraint(Sketcher.Constraint("Coincident", 43, 2, 40, 1))
sketch2.addConstraint(Sketcher.Constraint("Coincident", 44, 2, 45, 1))
sketch2.addConstraint(Sketcher.Constraint("Coincident", 45, 2, 46, 1))
sketch2.addConstraint(Sketcher.Constraint("Coincident", 46, 2, 47, 1))
sketch2.addConstraint(Sketcher.Constraint("Coincident", 47, 2, 44, 1))
sketch2.addConstraint(Sketcher.Constraint("Coincident", 48, 2, 49, 1))
sketch2.addConstraint(Sketcher.Constraint("Coincident", 49, 2, 50, 1))
sketch2.addConstraint(Sketcher.Constraint("Coincident", 50, 2, 51, 1))
sketch2.addConstraint(Sketcher.Constraint("Coincident", 51, 2, 48, 1))
sketch2.addConstraint(Sketcher.Constraint("Coincident", 52, 2, 53, 1))
sketch2.addConstraint(Sketcher.Constraint("Coincident", 53, 2, 54, 1))
sketch2.addConstraint(Sketcher.Constraint("Coincident", 54, 2, 55, 1))
sketch2.addConstraint(Sketcher.Constraint("Coincident", 55, 2, 52, 1))
sketch2.addConstraint(Sketcher.Constraint("Coincident", 56, 2, 57, 1))
sketch2.addConstraint(Sketcher.Constraint("Coincident", 57, 2, 58, 1))
sketch2.addConstraint(Sketcher.Constraint("Coincident", 58, 2, 59, 1))
sketch2.addConstraint(Sketcher.Constraint("Coincident", 59, 2, 56, 1))
sketch2.addConstraint(Sketcher.Constraint("Coincident", 60, 2, 61, 1))
sketch2.addConstraint(Sketcher.Constraint("Coincident", 61, 2, 62, 1))
sketch2.addConstraint(Sketcher.Constraint("Coincident", 62, 2, 63, 1))
sketch2.addConstraint(Sketcher.Constraint("Coincident", 63, 2, 60, 1))
sketch2.addConstraint(Sketcher.Constraint("Vertical", 0))
sketch2.addConstraint(Sketcher.Constraint("Horizontal", 1))
sketch2.addConstraint(Sketcher.Constraint("Vertical", 2))
sketch2.addConstraint(Sketcher.Constraint("Horizontal", 3))
sketch2.addConstraint(Sketcher.Constraint("Horizontal", 4))
sketch2.addConstraint(Sketcher.Constraint("Vertical", 5))
sketch2.addConstraint(Sketcher.Constraint("Horizontal", 6))
sketch2.addConstraint(Sketcher.Constraint("Vertical", 7))
sketch2.addConstraint(Sketcher.Constraint("Horizontal", 8))
sketch2.addConstraint(Sketcher.Constraint("Vertical", 9))
sketch2.addConstraint(Sketcher.Constraint("Horizontal", 10))
sketch2.addConstraint(Sketcher.Constraint("Vertical", 11))
sketch2.addConstraint(Sketcher.Constraint("Horizontal", 12))
sketch2.addConstraint(Sketcher.Constraint("Vertical", 13))
sketch2.addConstraint(Sketcher.Constraint("Horizontal", 14))
sketch2.addConstraint(Sketcher.Constraint("Vertical", 15))
sketch2.addConstraint(Sketcher.Constraint("Horizontal", 16))
sketch2.addConstraint(Sketcher.Constraint("Vertical", 17))
sketch2.addConstraint(Sketcher.Constraint("Horizontal", 18))
sketch2.addConstraint(Sketcher.Constraint("Vertical", 19))
sketch2.addConstraint(Sketcher.Constraint("Horizontal", 20))
sketch2.addConstraint(Sketcher.Constraint("Vertical", 21))
sketch2.addConstraint(Sketcher.Constraint("Horizontal", 22))
sketch2.addConstraint(Sketcher.Constraint("Vertical", 23))
sketch2.addConstraint(Sketcher.Constraint("Horizontal", 24))
sketch2.addConstraint(Sketcher.Constraint("Vertical", 25))
sketch2.addConstraint(Sketcher.Constraint("Horizontal", 26))
sketch2.addConstraint(Sketcher.Constraint("Vertical", 27))
sketch2.addConstraint(Sketcher.Constraint("Horizontal", 28))
sketch2.addConstraint(Sketcher.Constraint("Vertical", 29))
sketch2.addConstraint(Sketcher.Constraint("Horizontal", 30))
sketch2.addConstraint(Sketcher.Constraint("Vertical", 31))
sketch2.addConstraint(Sketcher.Constraint("Horizontal", 32))
sketch2.addConstraint(Sketcher.Constraint("Vertical", 33))
sketch2.addConstraint(Sketcher.Constraint("Horizontal", 34))
sketch2.addConstraint(Sketcher.Constraint("Vertical", 35))
sketch2.addConstraint(Sketcher.Constraint("Horizontal", 36))
sketch2.addConstraint(Sketcher.Constraint("Vertical", 37))
sketch2.addConstraint(Sketcher.Constraint("Horizontal", 38))
sketch2.addConstraint(Sketcher.Constraint("Vertical", 39))
sketch2.addConstraint(Sketcher.Constraint("Horizontal", 40))
sketch2.addConstraint(Sketcher.Constraint("Vertical", 41))
sketch2.addConstraint(Sketcher.Constraint("Horizontal", 42))
sketch2.addConstraint(Sketcher.Constraint("Vertical", 43))
sketch2.addConstraint(Sketcher.Constraint("Horizontal", 44))
sketch2.addConstraint(Sketcher.Constraint("Vertical", 45))
sketch2.addConstraint(Sketcher.Constraint("Horizontal", 46))
sketch2.addConstraint(Sketcher.Constraint("Vertical", 47))
sketch2.addConstraint(Sketcher.Constraint("Horizontal", 48))
sketch2.addConstraint(Sketcher.Constraint("Vertical", 49))
sketch2.addConstraint(Sketcher.Constraint("Horizontal", 50))
sketch2.addConstraint(Sketcher.Constraint("Vertical", 51))
sketch2.addConstraint(Sketcher.Constraint("Horizontal", 52))
sketch2.addConstraint(Sketcher.Constraint("Vertical", 53))
sketch2.addConstraint(Sketcher.Constraint("Horizontal", 54))
sketch2.addConstraint(Sketcher.Constraint("Vertical", 55))
sketch2.addConstraint(Sketcher.Constraint("Horizontal", 56))
sketch2.addConstraint(Sketcher.Constraint("Vertical", 57))
sketch2.addConstraint(Sketcher.Constraint("Horizontal", 58))
sketch2.addConstraint(Sketcher.Constraint("Vertical", 59))
sketch2.addConstraint(Sketcher.Constraint("Horizontal", 60))
sketch2.addConstraint(Sketcher.Constraint("Vertical", 61))
sketch2.addConstraint(Sketcher.Constraint("Horizontal", 62))
sketch2.addConstraint(Sketcher.Constraint("Vertical", 63))
sketch2.addConstraint(Sketcher.Constraint("Coincident", 0, 2, -1, 1))
sketch2.addConstraint(Sketcher.Constraint("Horizontal", 7, 2, 8, 2))
sketch2.addConstraint(Sketcher.Constraint("Horizontal", 6, 2, 9, 2))
sketch2.addConstraint(Sketcher.Constraint("Horizontal", 15, 2, 16, 2))
sketch2.addConstraint(Sketcher.Constraint("Horizontal", 14, 2, 17, 2))
sketch2.addConstraint(Sketcher.Constraint("Horizontal", 11, 2, 20, 2))
sketch2.addConstraint(Sketcher.Constraint("Horizontal", 10, 2, 21, 2))
sketch2.addConstraint(Sketcher.Constraint("Horizontal", 23, 2, 24, 2))
sketch2.addConstraint(Sketcher.Constraint("Horizontal", 22, 2, 25, 2))
sketch2.addConstraint(Sketcher.Constraint("Horizontal", 27, 2, 28, 2))
sketch2.addConstraint(Sketcher.Constraint("Horizontal", 26, 2, 29, 2))
sketch2.addConstraint(Sketcher.Constraint("Horizontal", 19, 2, 32, 2))
sketch2.addConstraint(Sketcher.Constraint("Horizontal", 18, 2, 33, 2))
sketch2.addConstraint(Sketcher.Constraint("Horizontal", 35, 2, 36, 2))
sketch2.addConstraint(Sketcher.Constraint("Horizontal", 34, 2, 37, 2))
sketch2.addConstraint(Sketcher.Constraint("Horizontal", 39, 2, 40, 2))
sketch2.addConstraint(Sketcher.Constraint("Horizontal", 38, 2, 41, 2))
sketch2.addConstraint(Sketcher.Constraint("Horizontal", 47, 2, 48, 2))
sketch2.addConstraint(Sketcher.Constraint("Horizontal", 46, 2, 49, 2))
sketch2.addConstraint(Sketcher.Constraint("Horizontal", 51, 2, 52, 2))
sketch2.addConstraint(Sketcher.Constraint("Horizontal", 50, 2, 53, 2))
sketch2.addConstraint(Sketcher.Constraint("Horizontal", 55, 2, 56, 2))
sketch2.addConstraint(Sketcher.Constraint("Horizontal", 54, 2, 57, 2))
sketch2.addConstraint(Sketcher.Constraint("Horizontal", 59, 2, 60, 2))
sketch2.addConstraint(Sketcher.Constraint("Horizontal", 58, 2, 61, 2))
sketch2.addConstraint(Sketcher.Constraint("Vertical", 5, 2, 12, 2))
sketch2.addConstraint(Sketcher.Constraint("Vertical", 7, 2, 14, 2))
sketch2.addConstraint(Sketcher.Constraint("Vertical", 9, 2, 16, 2))
sketch2.addConstraint(Sketcher.Constraint("Vertical", 11, 2, 18, 2))
sketch2.addConstraint(Sketcher.Constraint("Vertical", 21, 2, 32, 2))
sketch2.addConstraint(Sketcher.Constraint("Vertical", 23, 2, 34, 2))
sketch2.addConstraint(Sketcher.Constraint("Vertical", 25, 2, 36, 2))
sketch2.addConstraint(Sketcher.Constraint("Vertical", 27, 2, 38, 2))
sketch2.addConstraint(Sketcher.Constraint("Vertical", 29, 2, 40, 2))
sketch2.addConstraint(Sketcher.Constraint("Vertical", 31, 2, 42, 2))
sketch2.addConstraint(Sketcher.Constraint("Vertical", 13, 2, 44, 2))
sketch2.addConstraint(Sketcher.Constraint("Vertical", 15, 2, 46, 2))
sketch2.addConstraint(Sketcher.Constraint("Vertical", 17, 2, 48, 2))
sketch2.addConstraint(Sketcher.Constraint("Vertical", 19, 2, 50, 2))
sketch2.addConstraint(Sketcher.Constraint("Vertical", 33, 2, 52, 2))
sketch2.addConstraint(Sketcher.Constraint("Vertical", 35, 2, 54, 2))
sketch2.addConstraint(Sketcher.Constraint("Vertical", 37, 2, 56, 2))
sketch2.addConstraint(Sketcher.Constraint("Vertical", 39, 2, 58, 2))
sketch2.addConstraint(Sketcher.Constraint("Vertical", 41, 2, 60, 2))
sketch2.addConstraint(Sketcher.Constraint("Vertical", 43, 2, 62, 2))
sketch2.addConstraint(Sketcher.Constraint("Equal", 6, 8))
sketch2.addConstraint(Sketcher.Constraint("Equal", 18, 20))
sketch2.addConstraint(Sketcher.Constraint("Equal", 22, 24))
sketch2.addConstraint(Sketcher.Constraint("Equal", 26, 28))
sketch2.addConstraint(Sketcher.Constraint("Equal", 62, 5))
sketch2.addConstraint(Sketcher.Constraint("Equal", 11, 13))
sketch2.addConstraint(Sketcher.Constraint("Equal", 43, 45))
sketch2.addConstraint(Sketcher.Constraint("DistanceX", 1, 1, 1, 2, Q("24 in")))
sketch2.addConstraint(Sketcher.Constraint("DistanceX", 4, 2, 4, 1, Q("2 in")))
sketch2.addConstraint(Sketcher.Constraint("DistanceY", 0, 2, 0, 1, Q("12 in")))
sketch2.addConstraint(Sketcher.Constraint("DistanceX", -1, 1, 4, 2, Q("3 in")))
sketch2.addConstraint(Sketcher.Constraint("DistanceY", -1, 1, 4, 2, Q("2 in")))
sketch2.addConstraint(Sketcher.Constraint("DistanceX", -1, 1, 8, 2, Q("7 in")))
sketch2.addConstraint(Sketcher.Constraint("DistanceY", -1, 1, 12, 2, Q("5 in")))
sketch2.addConstraint(Sketcher.Constraint("DistanceX", -1, 1, 20, 2, Q("11 in")))
sketch2.addConstraint(Sketcher.Constraint("DistanceX", -1, 1, 24, 2, Q("15 in")))
sketch2.addConstraint(Sketcher.Constraint("DistanceX", -1, 1, 28, 2, Q("19 in")))
sketch2.addConstraint(Sketcher.Constraint("DistanceY", -1, 1, 44, 2, Q("8 in")))
pad2 = doc.addObject("PartDesign::Pad", "Pad001")
body.addObject(pad2)
pad2.Profile = sketch2
pad2.Length = Q("1 in")

doc.recompute()
